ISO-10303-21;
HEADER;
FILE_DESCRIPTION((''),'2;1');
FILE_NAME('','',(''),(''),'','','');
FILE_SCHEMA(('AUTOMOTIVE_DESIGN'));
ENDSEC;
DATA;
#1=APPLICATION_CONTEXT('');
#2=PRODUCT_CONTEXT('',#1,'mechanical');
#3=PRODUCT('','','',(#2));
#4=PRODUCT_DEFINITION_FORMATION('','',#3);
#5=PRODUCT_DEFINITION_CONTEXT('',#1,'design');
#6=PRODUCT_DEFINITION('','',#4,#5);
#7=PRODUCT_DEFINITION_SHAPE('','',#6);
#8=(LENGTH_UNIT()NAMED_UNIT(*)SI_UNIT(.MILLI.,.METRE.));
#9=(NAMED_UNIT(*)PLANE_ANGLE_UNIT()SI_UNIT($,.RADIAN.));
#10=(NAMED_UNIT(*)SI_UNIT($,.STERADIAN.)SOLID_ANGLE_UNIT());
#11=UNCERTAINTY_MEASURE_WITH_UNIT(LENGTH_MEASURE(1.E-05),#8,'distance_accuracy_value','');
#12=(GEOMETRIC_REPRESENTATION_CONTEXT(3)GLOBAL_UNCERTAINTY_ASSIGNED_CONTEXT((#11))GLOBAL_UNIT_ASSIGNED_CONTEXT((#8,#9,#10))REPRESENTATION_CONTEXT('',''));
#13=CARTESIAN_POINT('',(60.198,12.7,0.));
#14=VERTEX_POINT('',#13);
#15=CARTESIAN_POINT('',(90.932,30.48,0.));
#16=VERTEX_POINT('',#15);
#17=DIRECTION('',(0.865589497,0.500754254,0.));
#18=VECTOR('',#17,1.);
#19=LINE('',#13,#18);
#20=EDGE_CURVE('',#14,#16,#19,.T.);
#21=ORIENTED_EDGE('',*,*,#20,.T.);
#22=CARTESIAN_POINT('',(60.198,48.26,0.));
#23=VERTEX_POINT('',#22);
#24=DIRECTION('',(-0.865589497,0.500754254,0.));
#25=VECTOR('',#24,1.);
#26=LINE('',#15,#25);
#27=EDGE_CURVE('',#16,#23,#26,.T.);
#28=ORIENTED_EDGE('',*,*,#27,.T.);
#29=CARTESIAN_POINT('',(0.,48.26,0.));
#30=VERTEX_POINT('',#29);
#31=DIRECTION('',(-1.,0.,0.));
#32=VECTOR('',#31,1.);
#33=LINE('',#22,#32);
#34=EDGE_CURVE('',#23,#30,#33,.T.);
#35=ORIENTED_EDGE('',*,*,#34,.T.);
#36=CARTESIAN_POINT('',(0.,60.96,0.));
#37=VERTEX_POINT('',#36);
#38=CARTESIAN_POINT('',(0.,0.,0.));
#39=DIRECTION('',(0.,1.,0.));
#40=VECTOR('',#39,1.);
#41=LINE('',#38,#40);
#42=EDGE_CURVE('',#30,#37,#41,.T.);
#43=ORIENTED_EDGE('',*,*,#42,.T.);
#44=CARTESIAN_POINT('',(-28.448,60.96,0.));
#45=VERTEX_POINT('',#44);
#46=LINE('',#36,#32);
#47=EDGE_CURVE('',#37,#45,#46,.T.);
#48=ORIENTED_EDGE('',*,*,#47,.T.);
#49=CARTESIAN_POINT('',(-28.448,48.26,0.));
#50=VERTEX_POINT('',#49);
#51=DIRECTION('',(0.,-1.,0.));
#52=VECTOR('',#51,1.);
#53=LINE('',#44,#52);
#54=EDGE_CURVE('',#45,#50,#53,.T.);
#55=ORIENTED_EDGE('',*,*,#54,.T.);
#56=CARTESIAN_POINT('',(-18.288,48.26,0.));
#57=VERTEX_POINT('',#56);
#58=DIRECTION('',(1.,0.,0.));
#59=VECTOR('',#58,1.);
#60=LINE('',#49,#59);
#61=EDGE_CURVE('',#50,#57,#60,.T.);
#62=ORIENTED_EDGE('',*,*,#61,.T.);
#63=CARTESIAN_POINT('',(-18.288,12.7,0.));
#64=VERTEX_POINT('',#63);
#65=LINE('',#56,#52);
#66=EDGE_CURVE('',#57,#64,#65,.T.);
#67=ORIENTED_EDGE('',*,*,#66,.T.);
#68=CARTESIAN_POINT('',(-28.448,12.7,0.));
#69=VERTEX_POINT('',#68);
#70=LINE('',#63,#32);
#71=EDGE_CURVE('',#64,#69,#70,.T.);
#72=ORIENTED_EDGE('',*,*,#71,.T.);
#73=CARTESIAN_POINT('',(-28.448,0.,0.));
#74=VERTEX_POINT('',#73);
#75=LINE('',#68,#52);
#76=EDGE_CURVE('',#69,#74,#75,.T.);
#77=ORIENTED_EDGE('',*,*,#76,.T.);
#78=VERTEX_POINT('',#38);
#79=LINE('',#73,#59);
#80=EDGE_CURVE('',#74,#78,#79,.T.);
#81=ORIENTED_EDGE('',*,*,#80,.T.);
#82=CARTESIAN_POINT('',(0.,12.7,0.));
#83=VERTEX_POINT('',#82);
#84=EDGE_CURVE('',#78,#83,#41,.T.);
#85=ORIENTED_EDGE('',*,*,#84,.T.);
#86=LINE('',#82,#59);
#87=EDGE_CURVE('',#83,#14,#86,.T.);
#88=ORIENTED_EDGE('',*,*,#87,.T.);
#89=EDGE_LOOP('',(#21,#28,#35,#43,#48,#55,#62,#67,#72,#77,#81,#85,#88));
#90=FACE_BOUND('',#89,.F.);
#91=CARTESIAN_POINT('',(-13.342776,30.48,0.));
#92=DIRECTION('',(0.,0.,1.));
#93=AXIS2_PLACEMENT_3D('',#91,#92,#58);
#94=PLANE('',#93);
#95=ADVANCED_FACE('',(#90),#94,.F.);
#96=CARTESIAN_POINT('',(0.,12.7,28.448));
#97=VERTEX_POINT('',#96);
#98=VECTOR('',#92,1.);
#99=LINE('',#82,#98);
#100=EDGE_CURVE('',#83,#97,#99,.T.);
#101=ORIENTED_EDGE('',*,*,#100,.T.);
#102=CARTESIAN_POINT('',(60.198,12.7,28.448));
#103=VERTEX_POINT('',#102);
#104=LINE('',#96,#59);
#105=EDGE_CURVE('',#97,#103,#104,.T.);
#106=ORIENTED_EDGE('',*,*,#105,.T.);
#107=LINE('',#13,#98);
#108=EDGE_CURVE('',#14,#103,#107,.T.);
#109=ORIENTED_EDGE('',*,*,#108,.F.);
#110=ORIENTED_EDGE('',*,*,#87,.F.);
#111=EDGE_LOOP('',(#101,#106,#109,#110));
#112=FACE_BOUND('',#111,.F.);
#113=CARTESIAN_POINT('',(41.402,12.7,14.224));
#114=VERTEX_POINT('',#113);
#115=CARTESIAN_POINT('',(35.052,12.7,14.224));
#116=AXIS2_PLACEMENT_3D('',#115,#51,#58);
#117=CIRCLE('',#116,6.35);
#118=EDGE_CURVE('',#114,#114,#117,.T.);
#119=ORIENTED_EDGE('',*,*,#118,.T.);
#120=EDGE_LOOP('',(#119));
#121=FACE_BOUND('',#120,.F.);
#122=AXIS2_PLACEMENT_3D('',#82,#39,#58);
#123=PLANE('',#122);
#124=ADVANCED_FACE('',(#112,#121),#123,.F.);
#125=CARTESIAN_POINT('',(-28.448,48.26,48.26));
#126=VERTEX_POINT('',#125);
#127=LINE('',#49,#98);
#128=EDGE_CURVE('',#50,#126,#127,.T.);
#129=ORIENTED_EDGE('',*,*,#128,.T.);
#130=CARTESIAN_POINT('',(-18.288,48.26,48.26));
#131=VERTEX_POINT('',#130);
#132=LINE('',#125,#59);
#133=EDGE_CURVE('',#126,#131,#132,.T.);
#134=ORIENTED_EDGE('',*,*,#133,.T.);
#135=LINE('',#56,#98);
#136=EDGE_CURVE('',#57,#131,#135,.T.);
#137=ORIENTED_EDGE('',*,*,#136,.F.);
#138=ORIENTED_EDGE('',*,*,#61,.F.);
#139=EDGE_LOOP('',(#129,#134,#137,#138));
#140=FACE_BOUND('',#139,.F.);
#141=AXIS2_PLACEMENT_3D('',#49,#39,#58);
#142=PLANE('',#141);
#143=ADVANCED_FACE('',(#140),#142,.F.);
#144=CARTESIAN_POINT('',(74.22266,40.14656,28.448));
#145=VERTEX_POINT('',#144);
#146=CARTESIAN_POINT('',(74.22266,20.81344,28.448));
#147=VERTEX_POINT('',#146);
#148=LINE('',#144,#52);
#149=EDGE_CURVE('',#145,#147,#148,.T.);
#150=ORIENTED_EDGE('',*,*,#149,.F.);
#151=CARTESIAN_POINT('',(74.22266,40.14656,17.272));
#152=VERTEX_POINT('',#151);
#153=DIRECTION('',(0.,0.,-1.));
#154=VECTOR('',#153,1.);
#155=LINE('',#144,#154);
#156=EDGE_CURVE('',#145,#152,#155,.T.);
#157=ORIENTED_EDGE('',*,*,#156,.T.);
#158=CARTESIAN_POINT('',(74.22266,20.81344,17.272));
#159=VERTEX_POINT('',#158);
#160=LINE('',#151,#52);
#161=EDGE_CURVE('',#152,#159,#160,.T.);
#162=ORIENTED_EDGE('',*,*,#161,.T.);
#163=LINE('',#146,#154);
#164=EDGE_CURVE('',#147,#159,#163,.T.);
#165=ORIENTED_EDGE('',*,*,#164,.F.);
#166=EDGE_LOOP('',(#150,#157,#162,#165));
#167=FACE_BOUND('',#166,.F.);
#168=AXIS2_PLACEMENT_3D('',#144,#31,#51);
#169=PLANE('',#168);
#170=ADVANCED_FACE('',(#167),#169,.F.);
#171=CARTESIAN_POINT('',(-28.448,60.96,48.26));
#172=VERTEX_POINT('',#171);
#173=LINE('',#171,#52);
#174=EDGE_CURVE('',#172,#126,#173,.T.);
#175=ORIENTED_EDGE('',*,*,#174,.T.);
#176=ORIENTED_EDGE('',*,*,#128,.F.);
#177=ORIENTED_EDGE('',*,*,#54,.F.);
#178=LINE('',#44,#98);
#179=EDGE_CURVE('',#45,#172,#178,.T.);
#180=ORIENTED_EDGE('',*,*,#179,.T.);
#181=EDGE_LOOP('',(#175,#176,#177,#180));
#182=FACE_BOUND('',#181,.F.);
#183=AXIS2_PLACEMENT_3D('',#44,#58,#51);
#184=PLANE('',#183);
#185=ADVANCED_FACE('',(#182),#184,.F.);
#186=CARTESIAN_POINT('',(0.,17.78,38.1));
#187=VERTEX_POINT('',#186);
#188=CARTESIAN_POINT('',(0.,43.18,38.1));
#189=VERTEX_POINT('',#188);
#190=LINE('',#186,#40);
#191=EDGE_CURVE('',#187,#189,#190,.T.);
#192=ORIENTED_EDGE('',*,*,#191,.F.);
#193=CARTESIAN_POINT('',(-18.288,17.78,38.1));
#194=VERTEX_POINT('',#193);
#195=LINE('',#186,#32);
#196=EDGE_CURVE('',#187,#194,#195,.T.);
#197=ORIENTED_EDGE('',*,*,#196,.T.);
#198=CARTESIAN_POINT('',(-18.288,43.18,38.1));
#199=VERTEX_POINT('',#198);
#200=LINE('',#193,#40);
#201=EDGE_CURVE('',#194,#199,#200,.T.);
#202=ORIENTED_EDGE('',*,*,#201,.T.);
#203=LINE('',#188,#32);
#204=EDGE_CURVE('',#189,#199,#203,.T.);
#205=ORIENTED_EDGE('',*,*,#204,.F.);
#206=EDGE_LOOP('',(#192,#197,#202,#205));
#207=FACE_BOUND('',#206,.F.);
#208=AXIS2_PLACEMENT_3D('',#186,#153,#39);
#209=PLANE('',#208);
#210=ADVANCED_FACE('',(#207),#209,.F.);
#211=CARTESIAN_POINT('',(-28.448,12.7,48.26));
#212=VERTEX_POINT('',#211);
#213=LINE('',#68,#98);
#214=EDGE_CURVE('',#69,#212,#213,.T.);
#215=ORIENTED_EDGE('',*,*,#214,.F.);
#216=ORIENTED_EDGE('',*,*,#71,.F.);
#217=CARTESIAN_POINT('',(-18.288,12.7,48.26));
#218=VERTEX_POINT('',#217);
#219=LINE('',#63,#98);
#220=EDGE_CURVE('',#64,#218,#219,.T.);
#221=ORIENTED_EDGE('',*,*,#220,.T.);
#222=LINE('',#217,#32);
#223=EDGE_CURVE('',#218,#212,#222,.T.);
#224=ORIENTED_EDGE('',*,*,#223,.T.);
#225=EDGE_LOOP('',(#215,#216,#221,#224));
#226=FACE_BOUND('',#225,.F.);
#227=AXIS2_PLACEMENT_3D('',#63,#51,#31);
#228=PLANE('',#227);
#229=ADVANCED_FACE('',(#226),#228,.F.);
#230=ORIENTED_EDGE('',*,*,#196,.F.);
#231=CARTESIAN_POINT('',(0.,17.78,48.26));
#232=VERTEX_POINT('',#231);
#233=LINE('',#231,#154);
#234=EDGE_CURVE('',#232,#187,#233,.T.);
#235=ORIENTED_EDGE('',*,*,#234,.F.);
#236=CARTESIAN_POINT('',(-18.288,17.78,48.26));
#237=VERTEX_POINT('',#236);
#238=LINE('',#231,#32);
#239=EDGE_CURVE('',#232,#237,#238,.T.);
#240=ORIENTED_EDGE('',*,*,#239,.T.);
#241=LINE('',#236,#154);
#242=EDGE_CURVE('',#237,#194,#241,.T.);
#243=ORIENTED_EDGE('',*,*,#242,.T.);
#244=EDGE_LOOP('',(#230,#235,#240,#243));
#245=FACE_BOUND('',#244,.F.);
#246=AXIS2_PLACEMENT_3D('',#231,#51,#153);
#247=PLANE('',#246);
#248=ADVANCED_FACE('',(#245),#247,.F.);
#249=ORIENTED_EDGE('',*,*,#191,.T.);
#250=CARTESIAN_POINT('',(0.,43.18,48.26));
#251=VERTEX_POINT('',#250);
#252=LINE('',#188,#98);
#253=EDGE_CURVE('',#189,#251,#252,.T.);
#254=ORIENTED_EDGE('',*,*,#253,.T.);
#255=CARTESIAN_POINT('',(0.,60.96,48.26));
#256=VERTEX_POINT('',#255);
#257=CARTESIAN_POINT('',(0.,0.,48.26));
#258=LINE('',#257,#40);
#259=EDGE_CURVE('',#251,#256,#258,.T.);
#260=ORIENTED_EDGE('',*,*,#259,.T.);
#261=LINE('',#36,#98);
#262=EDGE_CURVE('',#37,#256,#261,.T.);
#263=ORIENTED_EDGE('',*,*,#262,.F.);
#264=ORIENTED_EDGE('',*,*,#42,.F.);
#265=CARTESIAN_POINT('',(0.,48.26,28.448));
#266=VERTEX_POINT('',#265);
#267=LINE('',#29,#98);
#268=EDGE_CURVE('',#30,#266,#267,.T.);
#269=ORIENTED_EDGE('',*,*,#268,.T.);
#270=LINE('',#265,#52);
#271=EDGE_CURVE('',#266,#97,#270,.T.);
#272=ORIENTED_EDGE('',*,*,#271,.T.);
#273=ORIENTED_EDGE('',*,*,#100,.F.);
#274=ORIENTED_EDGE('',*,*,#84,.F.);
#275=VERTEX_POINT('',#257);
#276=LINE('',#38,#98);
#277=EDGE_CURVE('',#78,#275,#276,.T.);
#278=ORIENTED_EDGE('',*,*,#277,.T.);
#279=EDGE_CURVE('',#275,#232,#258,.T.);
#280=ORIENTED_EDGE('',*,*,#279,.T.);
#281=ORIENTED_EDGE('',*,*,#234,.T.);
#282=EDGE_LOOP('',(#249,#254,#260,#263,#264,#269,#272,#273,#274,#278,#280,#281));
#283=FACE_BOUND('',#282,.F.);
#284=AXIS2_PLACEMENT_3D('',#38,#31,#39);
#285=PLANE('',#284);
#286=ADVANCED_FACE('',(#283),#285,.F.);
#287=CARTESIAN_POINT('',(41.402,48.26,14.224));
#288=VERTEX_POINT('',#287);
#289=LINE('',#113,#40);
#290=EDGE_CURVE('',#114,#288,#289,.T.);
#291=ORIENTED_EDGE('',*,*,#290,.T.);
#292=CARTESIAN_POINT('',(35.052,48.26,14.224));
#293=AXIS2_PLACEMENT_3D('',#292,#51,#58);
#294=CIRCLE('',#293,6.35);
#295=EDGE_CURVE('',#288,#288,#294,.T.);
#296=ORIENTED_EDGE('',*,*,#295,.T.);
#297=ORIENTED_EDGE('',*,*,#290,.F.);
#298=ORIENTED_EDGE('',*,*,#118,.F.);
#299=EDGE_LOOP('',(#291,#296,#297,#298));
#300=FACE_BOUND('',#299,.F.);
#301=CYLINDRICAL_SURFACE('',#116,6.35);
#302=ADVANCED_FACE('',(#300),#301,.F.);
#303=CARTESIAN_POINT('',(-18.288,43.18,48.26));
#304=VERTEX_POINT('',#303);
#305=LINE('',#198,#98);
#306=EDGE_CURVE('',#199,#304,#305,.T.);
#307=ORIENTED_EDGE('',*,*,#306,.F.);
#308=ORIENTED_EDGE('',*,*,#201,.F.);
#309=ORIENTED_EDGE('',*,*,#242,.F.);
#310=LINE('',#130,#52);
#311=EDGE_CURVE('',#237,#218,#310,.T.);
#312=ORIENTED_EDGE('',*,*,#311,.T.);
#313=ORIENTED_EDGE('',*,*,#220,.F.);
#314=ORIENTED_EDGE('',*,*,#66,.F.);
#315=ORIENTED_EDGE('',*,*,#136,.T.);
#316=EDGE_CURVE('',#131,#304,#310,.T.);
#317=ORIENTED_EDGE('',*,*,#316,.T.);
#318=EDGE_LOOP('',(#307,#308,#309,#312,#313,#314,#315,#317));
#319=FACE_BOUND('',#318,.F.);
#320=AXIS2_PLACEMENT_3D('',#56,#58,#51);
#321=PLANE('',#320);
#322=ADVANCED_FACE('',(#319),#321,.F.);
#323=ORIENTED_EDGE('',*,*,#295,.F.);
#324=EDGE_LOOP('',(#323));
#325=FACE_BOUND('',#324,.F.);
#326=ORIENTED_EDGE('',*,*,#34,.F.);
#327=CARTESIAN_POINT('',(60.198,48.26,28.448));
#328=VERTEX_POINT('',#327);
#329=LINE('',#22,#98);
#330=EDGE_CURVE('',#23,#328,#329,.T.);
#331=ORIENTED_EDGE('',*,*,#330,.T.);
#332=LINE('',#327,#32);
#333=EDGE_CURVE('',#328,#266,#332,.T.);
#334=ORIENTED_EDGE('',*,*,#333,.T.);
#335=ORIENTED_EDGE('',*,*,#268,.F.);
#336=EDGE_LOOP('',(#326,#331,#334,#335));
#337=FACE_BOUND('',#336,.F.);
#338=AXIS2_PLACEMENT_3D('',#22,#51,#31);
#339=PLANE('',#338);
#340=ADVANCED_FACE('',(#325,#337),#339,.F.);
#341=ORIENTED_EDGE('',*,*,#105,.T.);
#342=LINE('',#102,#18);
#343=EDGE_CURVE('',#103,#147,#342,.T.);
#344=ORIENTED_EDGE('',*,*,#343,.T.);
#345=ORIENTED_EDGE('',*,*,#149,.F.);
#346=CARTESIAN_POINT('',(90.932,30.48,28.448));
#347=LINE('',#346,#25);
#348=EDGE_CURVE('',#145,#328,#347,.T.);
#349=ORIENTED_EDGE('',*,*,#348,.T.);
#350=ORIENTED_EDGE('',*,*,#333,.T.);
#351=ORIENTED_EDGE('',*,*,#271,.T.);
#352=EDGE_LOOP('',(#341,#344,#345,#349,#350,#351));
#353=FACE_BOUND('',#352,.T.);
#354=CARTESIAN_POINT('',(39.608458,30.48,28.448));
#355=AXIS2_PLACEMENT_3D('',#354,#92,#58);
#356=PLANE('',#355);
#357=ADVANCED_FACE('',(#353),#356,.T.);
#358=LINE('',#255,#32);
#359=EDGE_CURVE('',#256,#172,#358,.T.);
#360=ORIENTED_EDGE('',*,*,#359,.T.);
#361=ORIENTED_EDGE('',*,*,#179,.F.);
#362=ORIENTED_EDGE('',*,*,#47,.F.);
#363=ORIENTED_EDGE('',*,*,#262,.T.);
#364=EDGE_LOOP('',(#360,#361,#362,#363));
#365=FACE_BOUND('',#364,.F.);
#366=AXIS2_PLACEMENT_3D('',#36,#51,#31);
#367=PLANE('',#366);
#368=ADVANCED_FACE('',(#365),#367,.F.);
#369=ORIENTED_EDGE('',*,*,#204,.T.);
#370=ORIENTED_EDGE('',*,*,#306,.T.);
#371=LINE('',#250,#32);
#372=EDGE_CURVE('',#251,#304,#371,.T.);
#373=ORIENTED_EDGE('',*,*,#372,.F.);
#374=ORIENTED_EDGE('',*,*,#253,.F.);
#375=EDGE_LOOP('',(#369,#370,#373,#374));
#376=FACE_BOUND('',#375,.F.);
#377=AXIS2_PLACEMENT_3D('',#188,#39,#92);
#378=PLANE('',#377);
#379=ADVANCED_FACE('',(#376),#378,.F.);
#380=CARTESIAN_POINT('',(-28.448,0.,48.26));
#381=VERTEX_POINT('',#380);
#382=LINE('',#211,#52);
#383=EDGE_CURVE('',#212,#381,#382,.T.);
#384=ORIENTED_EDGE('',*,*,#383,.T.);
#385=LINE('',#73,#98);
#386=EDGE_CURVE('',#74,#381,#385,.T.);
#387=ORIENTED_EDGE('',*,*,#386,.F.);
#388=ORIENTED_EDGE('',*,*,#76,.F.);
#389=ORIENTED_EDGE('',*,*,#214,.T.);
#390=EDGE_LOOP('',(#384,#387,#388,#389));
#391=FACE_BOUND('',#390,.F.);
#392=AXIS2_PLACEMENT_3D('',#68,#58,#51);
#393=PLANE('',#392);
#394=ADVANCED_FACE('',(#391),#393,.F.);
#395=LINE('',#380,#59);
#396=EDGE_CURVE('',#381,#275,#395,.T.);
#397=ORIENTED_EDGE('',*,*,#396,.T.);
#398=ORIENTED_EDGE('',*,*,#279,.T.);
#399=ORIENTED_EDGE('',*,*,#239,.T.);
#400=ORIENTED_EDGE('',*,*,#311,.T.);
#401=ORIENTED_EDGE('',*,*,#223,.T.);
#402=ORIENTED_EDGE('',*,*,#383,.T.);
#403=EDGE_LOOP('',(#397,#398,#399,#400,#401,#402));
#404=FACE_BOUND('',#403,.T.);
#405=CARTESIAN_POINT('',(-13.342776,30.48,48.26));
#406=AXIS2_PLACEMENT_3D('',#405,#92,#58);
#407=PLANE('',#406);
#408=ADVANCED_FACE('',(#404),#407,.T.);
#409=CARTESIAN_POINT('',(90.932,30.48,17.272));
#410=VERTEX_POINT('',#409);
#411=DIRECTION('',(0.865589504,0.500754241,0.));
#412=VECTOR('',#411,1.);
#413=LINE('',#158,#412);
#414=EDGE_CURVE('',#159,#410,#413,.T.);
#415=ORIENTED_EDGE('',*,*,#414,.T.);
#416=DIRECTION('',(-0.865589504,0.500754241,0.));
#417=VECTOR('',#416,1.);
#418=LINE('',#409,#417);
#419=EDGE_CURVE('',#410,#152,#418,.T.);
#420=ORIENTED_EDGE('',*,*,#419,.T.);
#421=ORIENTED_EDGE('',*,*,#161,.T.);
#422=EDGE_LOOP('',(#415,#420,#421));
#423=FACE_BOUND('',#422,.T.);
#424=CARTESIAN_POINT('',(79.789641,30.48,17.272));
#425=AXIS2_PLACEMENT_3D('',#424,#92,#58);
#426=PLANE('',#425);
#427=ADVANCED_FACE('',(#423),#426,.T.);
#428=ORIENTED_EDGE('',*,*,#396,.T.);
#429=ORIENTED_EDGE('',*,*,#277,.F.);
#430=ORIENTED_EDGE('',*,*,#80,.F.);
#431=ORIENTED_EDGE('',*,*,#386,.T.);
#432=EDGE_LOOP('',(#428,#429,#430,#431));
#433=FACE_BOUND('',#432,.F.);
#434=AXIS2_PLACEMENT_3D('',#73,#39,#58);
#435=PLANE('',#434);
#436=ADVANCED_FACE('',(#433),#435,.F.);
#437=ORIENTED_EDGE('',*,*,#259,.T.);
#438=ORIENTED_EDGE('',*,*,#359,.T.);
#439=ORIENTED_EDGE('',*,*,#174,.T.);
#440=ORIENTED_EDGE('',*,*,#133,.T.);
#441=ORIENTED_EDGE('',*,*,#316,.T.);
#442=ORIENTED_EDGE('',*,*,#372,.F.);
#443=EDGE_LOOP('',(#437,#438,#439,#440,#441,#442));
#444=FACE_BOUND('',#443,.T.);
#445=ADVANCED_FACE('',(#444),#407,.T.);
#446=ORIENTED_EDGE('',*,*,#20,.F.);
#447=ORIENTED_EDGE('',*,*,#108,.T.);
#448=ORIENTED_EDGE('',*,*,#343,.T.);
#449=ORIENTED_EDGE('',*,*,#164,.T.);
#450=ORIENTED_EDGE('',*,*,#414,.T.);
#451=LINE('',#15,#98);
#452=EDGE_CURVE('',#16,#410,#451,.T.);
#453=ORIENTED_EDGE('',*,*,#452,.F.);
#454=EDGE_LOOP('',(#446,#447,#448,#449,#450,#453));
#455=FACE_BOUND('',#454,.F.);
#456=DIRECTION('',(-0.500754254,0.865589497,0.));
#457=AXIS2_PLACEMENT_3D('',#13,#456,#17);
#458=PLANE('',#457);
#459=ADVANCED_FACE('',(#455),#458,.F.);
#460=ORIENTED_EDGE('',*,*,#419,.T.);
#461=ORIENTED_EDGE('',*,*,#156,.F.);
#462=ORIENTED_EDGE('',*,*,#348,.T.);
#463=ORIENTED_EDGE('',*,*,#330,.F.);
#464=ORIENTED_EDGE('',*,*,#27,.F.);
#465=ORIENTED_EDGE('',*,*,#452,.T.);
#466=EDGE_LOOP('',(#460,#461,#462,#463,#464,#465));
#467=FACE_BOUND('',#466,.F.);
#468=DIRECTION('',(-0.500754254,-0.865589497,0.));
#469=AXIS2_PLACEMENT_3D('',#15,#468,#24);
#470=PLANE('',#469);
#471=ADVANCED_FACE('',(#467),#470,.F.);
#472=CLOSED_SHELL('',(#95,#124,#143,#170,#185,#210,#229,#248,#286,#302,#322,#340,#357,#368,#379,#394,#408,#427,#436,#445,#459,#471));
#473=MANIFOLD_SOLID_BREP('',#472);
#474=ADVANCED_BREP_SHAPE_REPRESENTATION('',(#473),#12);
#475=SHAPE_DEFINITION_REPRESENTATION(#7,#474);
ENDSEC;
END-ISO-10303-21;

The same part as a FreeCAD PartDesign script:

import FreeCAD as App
import Part
import Sketcher
from FreeCAD import Vector
Q = App.Units.Quantity


def add_polygon(sketch, points):
    """Adds a closed chain of lines whose ends are joined by coincident constraints."""
    first, n = sketch.GeometryCount, len(points)
    for a, b in zip(points, points[1:] + points[:1]):
        sketch.addGeometry(Part.LineSegment(App.Vector(*a, 0), App.Vector(*b, 0)), False)
    for i in range(n):
        sketch.addConstraint(Sketcher.Constraint("Coincident", first + i, 2, first + (i + 1) % n, 1))

doc = App.newDocument("Part")
body = doc.addObject("PartDesign::Body", "Body")

sketch1 = body.newObject("Sketcher::SketchObject", "Sketch")
sketch1.AttachmentSupport = (doc.getObject("XY_Plane"), [""])
sketch1.MapMode = "FlatFace"
add_polygon(sketch1, [(-28.448, 0), (0, 0), (0, 60.96), (-28.448, 60.96), (-28.448, 48.26), (-18.288, 48.26), (-18.288, 12.7), (-28.448, 12.7)])
sketch1.addConstraint([
    Sketcher.Constraint("Horizontal", 0),
    Sketcher.Constraint("Vertical", 1),
    Sketcher.Constraint("Horizontal", 2),
    Sketcher.Constraint("Vertical", 3),
    Sketcher.Constraint("Horizontal", 4),
    Sketcher.Constraint("Vertical", 5),
    Sketcher.Constraint("Horizontal", 6),
    Sketcher.Constraint("Vertical", 7),
    Sketcher.Constraint("Coincident", 0, 2, -1, 1),
    Sketcher.Constraint("Vertical", 3, 2, 6, 2),
    Sketcher.Constraint("Equal", 3, 7),
    Sketcher.Constraint("DistanceX", 4, 1, 4, 2, Q("0.4 in")),
    Sketcher.Constraint("DistanceY", 1, 1, 1, 2, Q("2.4 in")),
    Sketcher.Constraint("DistanceY", 3, 2, 3, 1, Q("0.5 in")),
    Sketcher.Constraint("DistanceX", 0, 1, 0, 2, Q("1.12 in")),
])
pad1 = body.newObject("PartDesign::Pad", "Pad")
pad1.Profile = sketch1
pad1.Length = Q("1.9 in")

sketch2 = body.newObject("Sketcher::SketchObject", "Sketch001")
sketch2.AttachmentSupport = (doc.getObject("YZ_Plane"), [""])
sketch2.MapMode = "FlatFace"
add_polygon(sketch2, [(17.78, 38.1), (43.18, 38.1), (43.18, 48.26), (17.78, 48.26)])
sketch2.addConstraint([
    Sketcher.Constraint("Horizontal", 0),
    Sketcher.Constraint("Vertical", 1),
    Sketcher.Constraint("Horizontal", 2),
    Sketcher.Constraint("Vertical", 3),
    Sketcher.Constraint("DistanceX", 0, 1, 0, 2, Q("1 in")),
    Sketcher.Constraint("DistanceY", 1, 1, 1, 2, Q("0.4 in")),
    Sketcher.Constraint("DistanceX", -1, 1, 0, 2, Q("1.7 in")),
    Sketcher.Constraint("DistanceY", -1, 1, 0, 2, Q("1.5 in")),
])
pocket1 = body.newObject("PartDesign::Pocket", "Pocket")
pocket1.Profile = sketch2
pocket1.Type = "ThroughAll"

sketch3 = body.newObject("Sketcher::SketchObject", "Sketch002")
sketch3.AttachmentSupport = (doc.getObject("XY_Plane"), [""])
sketch3.MapMode = "FlatFace"
add_polygon(sketch3, [(0, 12.7), (60.198, 12.7), (90.932, 30.48), (60.198, 48.26), (0, 48.26)])
sketch3.addConstraint([
    Sketcher.Constraint("Horizontal", 0),
    Sketcher.Constraint("Horizontal", 3),
    Sketcher.Constraint("Vertical", 4),
    Sketcher.Constraint("PointOnObject", 3, 2, -2),
    Sketcher.Constraint("Vertical", 0, 2, 2, 2),
    Sketcher.Constraint("Equal", 1, 2),
    Sketcher.Constraint("DistanceY", 4, 2, 4, 1, Q("1.4 in")),
    Sketcher.Constraint("DistanceX", 0, 1, 0, 2, Q("2.37 in")),
    Sketcher.Constraint("DistanceY", -1, 1, 0, 2, Q("0.5 in")),
    Sketcher.Constraint("DistanceX", -1, 1, 1, 2, Q("3.58 in")),
])
pad2 = body.newObject("PartDesign::Pad", "Pad001")
pad2.Profile = sketch3
pad2.Length = Q("1.12 in")

sketch4 = body.newObject("Sketcher::SketchObject", "Sketch003")
sketch4.AttachmentSupport = (doc.getObject("XY_Plane"), [""])
sketch4.MapMode = "FlatFace"
sketch4.AttachmentOffset = App.Placement(Vector(0, 0, 1.12 * 25.4), App.Rotation())
add_polygon(sketch4, [(74.22266, 20.81344), (90.932, 30.48), (74.22266, 40.14656)])
sketch4.addConstraint([
    Sketcher.Constraint("Vertical", 2),
    Sketcher.Constraint("Equal", 0, 1),
    Sketcher.Constraint("DistanceY", -1, 1, 0, 2, Q("1.2 in")),
    Sketcher.Constraint("Distance", 0, Q("0.76 in")),
    Sketcher.Constraint("DistanceX", -1, 1, 0, 2, Q("3.58 in")),
    Sketcher.Constraint("DistanceY", 2, 2, 2, 1, Q("19.33312 mm")),
])
pocket2 = body.newObject("PartDesign::Pocket", "Pocket001")
pocket2.Profile = sketch4
pocket2.Length = Q("0.44 in")

sketch5 = body.newObject("Sketcher::SketchObject", "Sketch004")
sketch5.AttachmentSupport = (doc.getObject("XZ_Plane"), [""])
sketch5.MapMode = "FlatFace"
sketch5.AttachmentOffset = App.Placement(Vector(0, 0, -0.5 * 25.4), App.Rotation())
sketch5.addGeometry(Part.Circle(Vector(35.052, 14.224, 0), Vector(0, 0, 1), 6.35), False)
sketch5.addConstraint([
    Sketcher.Constraint("Diameter", 0, Q("0.5 in")),
    Sketcher.Constraint("DistanceX", -1, 1, 0, 3, Q("1.38 in")),
    Sketcher.Constraint("DistanceY", -1, 1, 0, 3, Q("0.56 in")),
])
pocket3 = body.newObject("PartDesign::Pocket", "Pocket002")
pocket3.Profile = sketch5
pocket3.Type = "ThroughAll"

doc.recompute()
